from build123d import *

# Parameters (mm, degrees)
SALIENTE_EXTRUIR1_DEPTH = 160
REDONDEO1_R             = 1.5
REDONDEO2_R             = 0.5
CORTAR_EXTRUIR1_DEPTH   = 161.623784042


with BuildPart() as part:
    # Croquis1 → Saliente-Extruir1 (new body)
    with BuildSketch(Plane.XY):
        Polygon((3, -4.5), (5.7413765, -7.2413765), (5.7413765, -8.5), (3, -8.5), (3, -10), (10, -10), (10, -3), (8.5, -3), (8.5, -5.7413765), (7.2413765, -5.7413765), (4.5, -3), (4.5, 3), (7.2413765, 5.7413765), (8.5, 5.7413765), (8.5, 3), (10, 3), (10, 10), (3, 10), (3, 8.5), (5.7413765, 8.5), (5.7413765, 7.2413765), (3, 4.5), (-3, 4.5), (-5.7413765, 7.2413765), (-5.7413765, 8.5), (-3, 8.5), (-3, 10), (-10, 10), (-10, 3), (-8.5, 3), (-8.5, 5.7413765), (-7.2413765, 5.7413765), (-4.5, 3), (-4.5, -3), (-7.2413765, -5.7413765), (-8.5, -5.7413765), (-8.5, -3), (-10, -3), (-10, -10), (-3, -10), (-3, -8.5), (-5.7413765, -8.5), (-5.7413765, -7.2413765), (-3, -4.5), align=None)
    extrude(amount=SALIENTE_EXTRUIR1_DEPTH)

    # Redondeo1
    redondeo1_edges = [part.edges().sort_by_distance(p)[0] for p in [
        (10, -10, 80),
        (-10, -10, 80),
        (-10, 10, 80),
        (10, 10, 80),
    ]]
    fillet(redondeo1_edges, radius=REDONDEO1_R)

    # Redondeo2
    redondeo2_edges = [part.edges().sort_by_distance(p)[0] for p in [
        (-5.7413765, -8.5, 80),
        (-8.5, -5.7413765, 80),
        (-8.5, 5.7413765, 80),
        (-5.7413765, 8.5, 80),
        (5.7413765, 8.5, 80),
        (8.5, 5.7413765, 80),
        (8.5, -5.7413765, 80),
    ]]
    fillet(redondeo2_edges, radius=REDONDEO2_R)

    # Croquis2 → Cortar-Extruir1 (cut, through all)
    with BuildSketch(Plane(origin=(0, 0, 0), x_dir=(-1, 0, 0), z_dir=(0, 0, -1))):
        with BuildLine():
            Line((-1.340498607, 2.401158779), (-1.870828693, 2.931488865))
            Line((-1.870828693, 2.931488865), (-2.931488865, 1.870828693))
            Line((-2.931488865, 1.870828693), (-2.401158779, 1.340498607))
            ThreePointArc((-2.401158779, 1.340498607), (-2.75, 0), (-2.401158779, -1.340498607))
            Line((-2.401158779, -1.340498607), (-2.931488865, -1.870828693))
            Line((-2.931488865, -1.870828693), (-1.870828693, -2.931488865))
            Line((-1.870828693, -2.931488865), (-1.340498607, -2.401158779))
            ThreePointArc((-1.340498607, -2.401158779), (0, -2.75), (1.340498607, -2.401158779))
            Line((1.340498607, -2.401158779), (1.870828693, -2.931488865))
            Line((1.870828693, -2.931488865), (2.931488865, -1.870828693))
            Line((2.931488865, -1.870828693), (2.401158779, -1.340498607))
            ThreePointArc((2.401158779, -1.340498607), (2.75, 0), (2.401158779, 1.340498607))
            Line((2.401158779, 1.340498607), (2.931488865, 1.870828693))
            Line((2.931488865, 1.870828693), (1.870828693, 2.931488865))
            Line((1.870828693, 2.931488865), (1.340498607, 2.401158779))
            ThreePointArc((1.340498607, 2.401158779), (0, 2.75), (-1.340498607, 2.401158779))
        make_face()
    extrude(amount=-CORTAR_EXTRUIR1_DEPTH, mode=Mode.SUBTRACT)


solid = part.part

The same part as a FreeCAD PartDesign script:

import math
import FreeCAD as App
import Part
import Sketcher

V = App.Vector


def edges_at(feature, points):
    """Names of the edges that pass closest to the given points."""
    edges = feature.Shape.Edges
    near = lambda p: min(range(len(edges)), key=lambda i: edges[i].distToShape(Part.Vertex(*p))[0])
    return sorted({f"Edge{near(p) + 1}" for p in points})

doc = App.newDocument("Part")
params = doc.addObject("Spreadsheet::Sheet", "Params")
for row, (alias, value) in enumerate([
    ("sketch1_width", "7 mm"),
    ("sketch1_width2", "6 mm"),
    ("sketch1_width3", "1.5 mm"),
    ("pad1_length", "160 mm"),
    ("fillet_radius", "1.5 mm"),
    ("fillet2_radius", "0.5 mm"),
    ("sketch2_radius", "2.75 mm"),
    ("sketch2_length", "1.5 mm"),
    ("sketch2_length2", "0.75 mm"),
], start=1):
    params.set(f"A{row}", alias)
    params.set(f"B{row}", "=" + value)
    params.setAlias(f"B{row}", alias)

body = doc.addObject("PartDesign::Body", "Body")

# Sketch on XY plane
sketch1 = body.newObject("Sketcher::SketchObject", "Sketch")
sketch1.AttachmentSupport = (doc.getObject("XY_Plane"), [""])
sketch1.MapMode = "FlatFace"
sketch1.addGeometry([
    Part.LineSegment(V(3, -4.5, 0), V(5.7, -7.2, 0)),  # 0
    Part.LineSegment(V(5.7, -7.2, 0), V(5.7, -8.5, 0)),  # 1
    Part.LineSegment(V(5.7, -8.5, 0), V(3, -8.5, 0)),  # 2
    Part.LineSegment(V(3, -8.5, 0), V(3, -10, 0)),  # 3
    Part.LineSegment(V(3, -10, 0), V(10, -10, 0)),  # 4
    Part.LineSegment(V(10, -10, 0), V(10, -3, 0)),  # 5
    Part.LineSegment(V(10, -3, 0), V(8.5, -3, 0)),  # 6
    Part.LineSegment(V(8.5, -3, 0), V(8.5, -5.7, 0)),  # 7
    Part.LineSegment(V(8.5, -5.7, 0), V(7.2, -5.7, 0)),  # 8
    Part.LineSegment(V(7.2, -5.7, 0), V(4.5, -3, 0)),  # 9
    Part.LineSegment(V(4.5, -3, 0), V(4.5, 3, 0)),  # 10
    Part.LineSegment(V(4.5, 3, 0), V(7.2, 5.7, 0)),  # 11
    Part.LineSegment(V(7.2, 5.7, 0), V(8.5, 5.7, 0)),  # 12
    Part.LineSegment(V(8.5, 5.7, 0), V(8.5, 3, 0)),  # 13
    Part.LineSegment(V(8.5, 3, 0), V(10, 3, 0)),  # 14
    Part.LineSegment(V(10, 3, 0), V(10, 10, 0)),  # 15
    Part.LineSegment(V(10, 10, 0), V(3, 10, 0)),  # 16
    Part.LineSegment(V(3, 10, 0), V(3, 8.5, 0)),  # 17
    Part.LineSegment(V(3, 8.5, 0), V(5.7, 8.5, 0)),  # 18
    Part.LineSegment(V(5.7, 8.5, 0), V(5.7, 7.2, 0)),  # 19
    Part.LineSegment(V(5.7, 7.2, 0), V(3, 4.5, 0)),  # 20
    Part.LineSegment(V(3, 4.5, 0), V(-3, 4.5, 0)),  # 21
    Part.LineSegment(V(-3, 4.5, 0), V(-5.7, 7.2, 0)),  # 22
    Part.LineSegment(V(-5.7, 7.2, 0), V(-5.7, 8.5, 0)),  # 23
    Part.LineSegment(V(-5.7, 8.5, 0), V(-3, 8.5, 0)),  # 24
    Part.LineSegment(V(-3, 8.5, 0), V(-3, 10, 0)),  # 25
    Part.LineSegment(V(-3, 10, 0), V(-10, 10, 0)),  # 26
    Part.LineSegment(V(-10, 10, 0), V(-10, 3, 0)),  # 27
    Part.LineSegment(V(-10, 3, 0), V(-8.5, 3, 0)),  # 28
    Part.LineSegment(V(-8.5, 3, 0), V(-8.5, 5.7, 0)),  # 29
    Part.LineSegment(V(-8.5, 5.7, 0), V(-7.2, 5.7, 0)),  # 30
    Part.LineSegment(V(-7.2, 5.7, 0), V(-4.5, 3, 0)),  # 31
    Part.LineSegment(V(-4.5, 3, 0), V(-4.5, -3, 0)),  # 32
    Part.LineSegment(V(-4.5, -3, 0), V(-7.2, -5.7, 0)),  # 33
    Part.LineSegment(V(-7.2, -5.7, 0), V(-8.5, -5.7, 0)),  # 34
    Part.LineSegment(V(-8.5, -5.7, 0), V(-8.5, -3, 0)),  # 35
    Part.LineSegment(V(-8.5, -3, 0), V(-10, -3, 0)),  # 36
    Part.LineSegment(V(-10, -3, 0), V(-10, -10, 0)),  # 37
    Part.LineSegment(V(-10, -10, 0), V(-3, -10, 0)),  # 38
    Part.LineSegment(V(-3, -10, 0), V(-3, -8.5, 0)),  # 39
    Part.LineSegment(V(-3, -8.5, 0), V(-5.7, -8.5, 0)),  # 40
    Part.LineSegment(V(-5.7, -8.5, 0), V(-5.7, -7.2, 0)),  # 41
    Part.LineSegment(V(-5.7, -7.2, 0), V(-3, -4.5, 0)),  # 42
    Part.LineSegment(V(-3, -4.5, 0), V(3, -4.5, 0)),  # 43
], False)
sketch1.addConstraint([
    Sketcher.Constraint("Coincident", 0, 2, 1, 1),
    Sketcher.Constraint("Coincident", 1, 2, 2, 1),
    Sketcher.Constraint("Coincident", 2, 2, 3, 1),
    Sketcher.Constraint("Coincident", 3, 2, 4, 1),
    Sketcher.Constraint("Coincident", 4, 2, 5, 1),
    Sketcher.Constraint("Coincident", 5, 2, 6, 1),
    Sketcher.Constraint("Coincident", 6, 2, 7, 1),
    Sketcher.Constraint("Coincident", 7, 2, 8, 1),
    Sketcher.Constraint("Coincident", 8, 2, 9, 1),
    Sketcher.Constraint("Coincident", 9, 2, 10, 1),
    Sketcher.Constraint("Coincident", 10, 2, 11, 1),
    Sketcher.Constraint("Coincident", 11, 2, 12, 1),
    Sketcher.Constraint("Coincident", 12, 2, 13, 1),
    Sketcher.Constraint("Coincident", 13, 2, 14, 1),
    Sketcher.Constraint("Coincident", 14, 2, 15, 1),
    Sketcher.Constraint("Coincident", 15, 2, 16, 1),
    Sketcher.Constraint("Coincident", 16, 2, 17, 1),
    Sketcher.Constraint("Coincident", 17, 2, 18, 1),
    Sketcher.Constraint("Coincident", 18, 2, 19, 1),
    Sketcher.Constraint("Coincident", 19, 2, 20, 1),
    Sketcher.Constraint("Coincident", 20, 2, 21, 1),
    Sketcher.Constraint("Coincident", 21, 2, 22, 1),
    Sketcher.Constraint("Coincident", 22, 2, 23, 1),
    Sketcher.Constraint("Coincident", 23, 2, 24, 1),
    Sketcher.Constraint("Coincident", 24, 2, 25, 1),
    Sketcher.Constraint("Coincident", 25, 2, 26, 1),
    Sketcher.Constraint("Coincident", 26, 2, 27, 1),
    Sketcher.Constraint("Coincident", 27, 2, 28, 1),
    Sketcher.Constraint("Coincident", 28, 2, 29, 1),
    Sketcher.Constraint("Coincident", 29, 2, 30, 1),
    Sketcher.Constraint("Coincident", 30, 2, 31, 1),
    Sketcher.Constraint("Coincident", 31, 2, 32, 1),
    Sketcher.Constraint("Coincident", 32, 2, 33, 1),
    Sketcher.Constraint("Coincident", 33, 2, 34, 1),
    Sketcher.Constraint("Coincident", 34, 2, 35, 1),
    Sketcher.Constraint("Coincident", 35, 2, 36, 1),
    Sketcher.Constraint("Coincident", 36, 2, 37, 1),
    Sketcher.Constraint("Coincident", 37, 2, 38, 1),
    Sketcher.Constraint("Coincident", 38, 2, 39, 1),
    Sketcher.Constraint("Coincident", 39, 2, 40, 1),
    Sketcher.Constraint("Coincident", 40, 2, 41, 1),
    Sketcher.Constraint("Coincident", 41, 2, 42, 1),
    Sketcher.Constraint("Coincident", 42, 2, 43, 1),
    Sketcher.Constraint("Coincident", 43, 2, 0, 1),
    Sketcher.Constraint("Vertical", 1),
    Sketcher.Constraint("Horizontal", 2),
    Sketcher.Constraint("Vertical", 3),
    Sketcher.Constraint("Horizontal", 4),
    Sketcher.Constraint("Vertical", 5),
    Sketcher.Constraint("Horizontal", 6),
    Sketcher.Constraint("Vertical", 7),
    Sketcher.Constraint("Horizontal", 8),
    Sketcher.Constraint("Vertical", 10),
    Sketcher.Constraint("Horizontal", 12),
    Sketcher.Constraint("Vertical", 13),
    Sketcher.Constraint("Horizontal", 14),
    Sketcher.Constraint("Vertical", 15),
    Sketcher.Constraint("Horizontal", 16),
    Sketcher.Constraint("Vertical", 17),
    Sketcher.Constraint("Horizontal", 18),
    Sketcher.Constraint("Vertical", 19),
    Sketcher.Constraint("Horizontal", 21),
    Sketcher.Constraint("Vertical", 23),
    Sketcher.Constraint("Horizontal", 24),
    Sketcher.Constraint("Vertical", 25),
    Sketcher.Constraint("Horizontal", 26),
    Sketcher.Constraint("Vertical", 27),
    Sketcher.Constraint("Horizontal", 28),
    Sketcher.Constraint("Vertical", 29),
    Sketcher.Constraint("Horizontal", 30),
    Sketcher.Constraint("Vertical", 32),
    Sketcher.Constraint("Horizontal", 34),
    Sketcher.Constraint("Vertical", 35),
    Sketcher.Constraint("Horizontal", 36),
    Sketcher.Constraint("Vertical", 37),
    Sketcher.Constraint("Horizontal", 38),
    Sketcher.Constraint("Vertical", 39),
    Sketcher.Constraint("Horizontal", 40),
    Sketcher.Constraint("Vertical", 41),
    Sketcher.Constraint("Horizontal", 43),
    Sketcher.Constraint("Symmetric", 0, 2, 22, 2, -1, 1),
    Sketcher.Constraint("Symmetric", 2, 2, 24, 2, -1, 1),
    Sketcher.Constraint("Symmetric", 4, 2, 26, 2, -1, 1),
    Sketcher.Constraint("Symmetric", 6, 2, 28, 2, -1, 1),
    Sketcher.Constraint("Symmetric", 8, 2, 30, 2, -1, 1),
    Sketcher.Constraint("Symmetric", 9, 2, 31, 2, -1, 1),
    Sketcher.Constraint("Symmetric", 11, 2, 33, 2, -1, 1),
    Sketcher.Constraint("Symmetric", 13, 2, 35, 2, -1, 1),
    Sketcher.Constraint("Symmetric", 15, 2, 37, 2, -1, 1),
    Sketcher.Constraint("Symmetric", 17, 2, 39, 2, -1, 1),
    Sketcher.Constraint("Symmetric", 19, 2, 41, 2, -1, 1),
    Sketcher.Constraint("Symmetric", 20, 2, 42, 2, -1, 1),
    Sketcher.Constraint("Symmetric", 19, 2, 22, 2, -2),
    Sketcher.Constraint("Symmetric", 17, 2, 24, 2, -2),
    Sketcher.Constraint("Symmetric", 15, 2, 26, 2, -2),
    Sketcher.Constraint("Symmetric", 13, 2, 28, 2, -2),
    Sketcher.Constraint("Symmetric", 11, 2, 30, 2, -2),
    Sketcher.Constraint("Parallel", 0, 9),
    Sketcher.Constraint("Perpendicular", 9, 11),
    Sketcher.Constraint("Parallel", 11, 20),
    Sketcher.Constraint("Perpendicular", 20, 22),
    Sketcher.Constraint("Perpendicular", 31, 33),
    Sketcher.Constraint("Horizontal", 6, 2, 9, 2),
    Sketcher.Constraint("Horizontal", 10, 2, 13, 2),
    Sketcher.Constraint("Vertical", 17, 2, 20, 2),
    Sketcher.Constraint("Equal", 34, 1),
    Sketcher.Constraint("Equal", 36, 3),
    Sketcher.Constraint("Equal", 38, 5),
    Sketcher.Constraint("Equal", 40, 7),
    Sketcher.Constraint("Equal", 43, 10),
    Sketcher.Constraint("DistanceX", 4, 1, 4, 2, 7.0),
    Sketcher.Constraint("DistanceX", 21, 2, 21, 1, 6.0),
    Sketcher.Constraint("DistanceX", 6, 2, 6, 1, 1.5),
    Sketcher.Constraint("DistanceX", 9, 2, 6, 2, 4.0),
    Sketcher.Constraint("Distance", 0, 3.876892),
])
sketch1.setExpression("Constraints[110]", "Params.sketch1_width")
sketch1.setExpression("Constraints[111]", "Params.sketch1_width2")
sketch1.setExpression("Constraints[112]", "Params.sketch1_width3")
pad1 = body.newObject("PartDesign::Pad", "Pad")
pad1.Profile = sketch1
pad1.setExpression("Length", "Params.pad1_length")
doc.recompute()

fillet = body.newObject("PartDesign::Fillet", "Fillet")
fillet.Base = (pad1, edges_at(pad1, [
    (10, -10, 80),
    (-10, -10, 80),
    (-10, 10, 80),
    (10, 10, 80),
]))
fillet.setExpression("Radius", "Params.fillet_radius")
doc.recompute()

fillet2 = body.newObject("PartDesign::Fillet", "Fillet001")
fillet2.Base = (fillet, edges_at(fillet, [
    (-5.741, -8.5, 80),
    (-8.5, -5.741, 80),
    (-8.5, 5.741, 80),
    (-5.741, 8.5, 80),
    (5.741, 8.5, 80),
    (8.5, 5.741, 80),
    (8.5, -5.741, 80),
]))
fillet2.setExpression("Radius", "Params.fillet2_radius")

# Sketch on XY plane
sketch2 = body.newObject("Sketcher::SketchObject", "Sketch001")
sketch2.AttachmentSupport = (doc.getObject("XY_Plane"), [""])
sketch2.MapMode = "FlatFace"
sketch2.addGeometry([
    Part.LineSegment(V(1.3, 2.4, 0), V(1.9, 2.9, 0)),  # 0
    Part.LineSegment(V(1.9, 2.9, 0), V(2.9, 1.9, 0)),  # 1
    Part.LineSegment(V(2.9, 1.9, 0), V(2.4, 1.3, 0)),  # 2
    Part.ArcOfCircle(Part.Circle(V(0, 0, 0), V(0, 0, 1), 2.7), math.radians(-29), math.radians(29)),  # 3
    Part.LineSegment(V(2.4, -1.3, 0), V(2.9, -1.9, 0)),  # 4
    Part.LineSegment(V(2.9, -1.9, 0), V(1.9, -2.9, 0)),  # 5
    Part.LineSegment(V(1.9, -2.9, 0), V(1.3, -2.4, 0)),  # 6
    Part.ArcOfCircle(Part.Circle(V(0, 0, 0), V(0, 0, 1), 2.7), math.radians(-119), math.radians(-61)),  # 7
    Part.LineSegment(V(-1.3, -2.4, 0), V(-1.9, -2.9, 0)),  # 8
    Part.LineSegment(V(-1.9, -2.9, 0), V(-2.9, -1.9, 0)),  # 9
    Part.LineSegment(V(-2.9, -1.9, 0), V(-2.4, -1.3, 0)),  # 10
    Part.ArcOfCircle(Part.Circle(V(0, 0, 0), V(0, 0, 1), 2.7), math.radians(151), math.radians(209)),  # 11
    Part.LineSegment(V(-2.4, 1.3, 0), V(-2.9, 1.9, 0)),  # 12
    Part.LineSegment(V(-2.9, 1.9, 0), V(-1.9, 2.9, 0)),  # 13
    Part.LineSegment(V(-1.9, 2.9, 0), V(-1.3, 2.4, 0)),  # 14
    Part.ArcOfCircle(Part.Circle(V(0, 0, 0), V(0, 0, 1), 2.7), math.radians(61), math.radians(119)),  # 15
], False)
sketch2.addConstraint([
    Sketcher.Constraint("Coincident", 0, 2, 1, 1),
    Sketcher.Constraint("Coincident", 1, 2, 2, 1),
    Sketcher.Constraint("Coincident", 2, 2, 3, 2),
    Sketcher.Constraint("Coincident", 3, 1, 4, 1),
    Sketcher.Constraint("Coincident", 4, 2, 5, 1),
    Sketcher.Constraint("Coincident", 5, 2, 6, 1),
    Sketcher.Constraint("Coincident", 6, 2, 7, 2),
    Sketcher.Constraint("Coincident", 7, 1, 8, 1),
    Sketcher.Constraint("Coincident", 8, 2, 9, 1),
    Sketcher.Constraint("Coincident", 9, 2, 10, 1),
    Sketcher.Constraint("Coincident", 10, 2, 11, 2),
    Sketcher.Constraint("Coincident", 11, 1, 12, 1),
    Sketcher.Constraint("Coincident", 12, 2, 13, 1),
    Sketcher.Constraint("Coincident", 13, 2, 14, 1),
    Sketcher.Constraint("Coincident", 14, 2, 15, 2),
    Sketcher.Constraint("Coincident", 15, 1, 0, 1),
    Sketcher.Constraint("Coincident", 3, 3, -1, 1),
    Sketcher.Constraint("Coincident", 7, 3, -1, 1),
    Sketcher.Constraint("Coincident", 11, 3, -1, 1),
    Sketcher.Constraint("Coincident", 15, 3, -1, 1),
    Sketcher.Constraint("Equal", 3, 7),
    Sketcher.Constraint("Equal", 7, 11),
    Sketcher.Constraint("Equal", 11, 15),
    Sketcher.Constraint("Symmetric", 0, 2, 8, 2, -1, 1),
    Sketcher.Constraint("Symmetric", 1, 2, 9, 2, -1, 1),
    Sketcher.Constraint("Symmetric", 4, 2, 12, 2, -1, 1),
    Sketcher.Constraint("Symmetric", 5, 2, 13, 2, -1, 1),
    Sketcher.Constraint("Symmetric", 5, 2, 8, 2, -2),
    Sketcher.Constraint("Symmetric", 4, 2, 9, 2, -2),
    Sketcher.Constraint("Perpendicular", 0, 1),
    Sketcher.Constraint("Perpendicular", 1, 2),
    Sketcher.Constraint("Perpendicular", 2, 4),
    Sketcher.Constraint("Perpendicular", 4, 5),
    Sketcher.Constraint("Perpendicular", 5, 6),
    Sketcher.Constraint("Perpendicular", 6, 8),
    Sketcher.Constraint("Perpendicular", 9, 10),
    Sketcher.Constraint("Perpendicular", 10, 12),
    Sketcher.Constraint("Perpendicular", 13, 14),
    Sketcher.Constraint("Equal", 0, 2),
    Sketcher.Constraint("Radius", 3, 2.75),
    Sketcher.Constraint("Distance", 1, 1.5),
    Sketcher.Constraint("Distance", 0, 0.75),
])
sketch2.setExpression("Constraints[39]", "Params.sketch2_radius")
sketch2.setExpression("Constraints[40]", "Params.sketch2_length")
sketch2.setExpression("Constraints[41]", "Params.sketch2_length2")
pocket1 = body.newObject("PartDesign::Pocket", "Pocket")
pocket1.Profile = sketch2
pocket1.Type = "ThroughAll"
pocket1.Reversed = True

doc.recompute()
